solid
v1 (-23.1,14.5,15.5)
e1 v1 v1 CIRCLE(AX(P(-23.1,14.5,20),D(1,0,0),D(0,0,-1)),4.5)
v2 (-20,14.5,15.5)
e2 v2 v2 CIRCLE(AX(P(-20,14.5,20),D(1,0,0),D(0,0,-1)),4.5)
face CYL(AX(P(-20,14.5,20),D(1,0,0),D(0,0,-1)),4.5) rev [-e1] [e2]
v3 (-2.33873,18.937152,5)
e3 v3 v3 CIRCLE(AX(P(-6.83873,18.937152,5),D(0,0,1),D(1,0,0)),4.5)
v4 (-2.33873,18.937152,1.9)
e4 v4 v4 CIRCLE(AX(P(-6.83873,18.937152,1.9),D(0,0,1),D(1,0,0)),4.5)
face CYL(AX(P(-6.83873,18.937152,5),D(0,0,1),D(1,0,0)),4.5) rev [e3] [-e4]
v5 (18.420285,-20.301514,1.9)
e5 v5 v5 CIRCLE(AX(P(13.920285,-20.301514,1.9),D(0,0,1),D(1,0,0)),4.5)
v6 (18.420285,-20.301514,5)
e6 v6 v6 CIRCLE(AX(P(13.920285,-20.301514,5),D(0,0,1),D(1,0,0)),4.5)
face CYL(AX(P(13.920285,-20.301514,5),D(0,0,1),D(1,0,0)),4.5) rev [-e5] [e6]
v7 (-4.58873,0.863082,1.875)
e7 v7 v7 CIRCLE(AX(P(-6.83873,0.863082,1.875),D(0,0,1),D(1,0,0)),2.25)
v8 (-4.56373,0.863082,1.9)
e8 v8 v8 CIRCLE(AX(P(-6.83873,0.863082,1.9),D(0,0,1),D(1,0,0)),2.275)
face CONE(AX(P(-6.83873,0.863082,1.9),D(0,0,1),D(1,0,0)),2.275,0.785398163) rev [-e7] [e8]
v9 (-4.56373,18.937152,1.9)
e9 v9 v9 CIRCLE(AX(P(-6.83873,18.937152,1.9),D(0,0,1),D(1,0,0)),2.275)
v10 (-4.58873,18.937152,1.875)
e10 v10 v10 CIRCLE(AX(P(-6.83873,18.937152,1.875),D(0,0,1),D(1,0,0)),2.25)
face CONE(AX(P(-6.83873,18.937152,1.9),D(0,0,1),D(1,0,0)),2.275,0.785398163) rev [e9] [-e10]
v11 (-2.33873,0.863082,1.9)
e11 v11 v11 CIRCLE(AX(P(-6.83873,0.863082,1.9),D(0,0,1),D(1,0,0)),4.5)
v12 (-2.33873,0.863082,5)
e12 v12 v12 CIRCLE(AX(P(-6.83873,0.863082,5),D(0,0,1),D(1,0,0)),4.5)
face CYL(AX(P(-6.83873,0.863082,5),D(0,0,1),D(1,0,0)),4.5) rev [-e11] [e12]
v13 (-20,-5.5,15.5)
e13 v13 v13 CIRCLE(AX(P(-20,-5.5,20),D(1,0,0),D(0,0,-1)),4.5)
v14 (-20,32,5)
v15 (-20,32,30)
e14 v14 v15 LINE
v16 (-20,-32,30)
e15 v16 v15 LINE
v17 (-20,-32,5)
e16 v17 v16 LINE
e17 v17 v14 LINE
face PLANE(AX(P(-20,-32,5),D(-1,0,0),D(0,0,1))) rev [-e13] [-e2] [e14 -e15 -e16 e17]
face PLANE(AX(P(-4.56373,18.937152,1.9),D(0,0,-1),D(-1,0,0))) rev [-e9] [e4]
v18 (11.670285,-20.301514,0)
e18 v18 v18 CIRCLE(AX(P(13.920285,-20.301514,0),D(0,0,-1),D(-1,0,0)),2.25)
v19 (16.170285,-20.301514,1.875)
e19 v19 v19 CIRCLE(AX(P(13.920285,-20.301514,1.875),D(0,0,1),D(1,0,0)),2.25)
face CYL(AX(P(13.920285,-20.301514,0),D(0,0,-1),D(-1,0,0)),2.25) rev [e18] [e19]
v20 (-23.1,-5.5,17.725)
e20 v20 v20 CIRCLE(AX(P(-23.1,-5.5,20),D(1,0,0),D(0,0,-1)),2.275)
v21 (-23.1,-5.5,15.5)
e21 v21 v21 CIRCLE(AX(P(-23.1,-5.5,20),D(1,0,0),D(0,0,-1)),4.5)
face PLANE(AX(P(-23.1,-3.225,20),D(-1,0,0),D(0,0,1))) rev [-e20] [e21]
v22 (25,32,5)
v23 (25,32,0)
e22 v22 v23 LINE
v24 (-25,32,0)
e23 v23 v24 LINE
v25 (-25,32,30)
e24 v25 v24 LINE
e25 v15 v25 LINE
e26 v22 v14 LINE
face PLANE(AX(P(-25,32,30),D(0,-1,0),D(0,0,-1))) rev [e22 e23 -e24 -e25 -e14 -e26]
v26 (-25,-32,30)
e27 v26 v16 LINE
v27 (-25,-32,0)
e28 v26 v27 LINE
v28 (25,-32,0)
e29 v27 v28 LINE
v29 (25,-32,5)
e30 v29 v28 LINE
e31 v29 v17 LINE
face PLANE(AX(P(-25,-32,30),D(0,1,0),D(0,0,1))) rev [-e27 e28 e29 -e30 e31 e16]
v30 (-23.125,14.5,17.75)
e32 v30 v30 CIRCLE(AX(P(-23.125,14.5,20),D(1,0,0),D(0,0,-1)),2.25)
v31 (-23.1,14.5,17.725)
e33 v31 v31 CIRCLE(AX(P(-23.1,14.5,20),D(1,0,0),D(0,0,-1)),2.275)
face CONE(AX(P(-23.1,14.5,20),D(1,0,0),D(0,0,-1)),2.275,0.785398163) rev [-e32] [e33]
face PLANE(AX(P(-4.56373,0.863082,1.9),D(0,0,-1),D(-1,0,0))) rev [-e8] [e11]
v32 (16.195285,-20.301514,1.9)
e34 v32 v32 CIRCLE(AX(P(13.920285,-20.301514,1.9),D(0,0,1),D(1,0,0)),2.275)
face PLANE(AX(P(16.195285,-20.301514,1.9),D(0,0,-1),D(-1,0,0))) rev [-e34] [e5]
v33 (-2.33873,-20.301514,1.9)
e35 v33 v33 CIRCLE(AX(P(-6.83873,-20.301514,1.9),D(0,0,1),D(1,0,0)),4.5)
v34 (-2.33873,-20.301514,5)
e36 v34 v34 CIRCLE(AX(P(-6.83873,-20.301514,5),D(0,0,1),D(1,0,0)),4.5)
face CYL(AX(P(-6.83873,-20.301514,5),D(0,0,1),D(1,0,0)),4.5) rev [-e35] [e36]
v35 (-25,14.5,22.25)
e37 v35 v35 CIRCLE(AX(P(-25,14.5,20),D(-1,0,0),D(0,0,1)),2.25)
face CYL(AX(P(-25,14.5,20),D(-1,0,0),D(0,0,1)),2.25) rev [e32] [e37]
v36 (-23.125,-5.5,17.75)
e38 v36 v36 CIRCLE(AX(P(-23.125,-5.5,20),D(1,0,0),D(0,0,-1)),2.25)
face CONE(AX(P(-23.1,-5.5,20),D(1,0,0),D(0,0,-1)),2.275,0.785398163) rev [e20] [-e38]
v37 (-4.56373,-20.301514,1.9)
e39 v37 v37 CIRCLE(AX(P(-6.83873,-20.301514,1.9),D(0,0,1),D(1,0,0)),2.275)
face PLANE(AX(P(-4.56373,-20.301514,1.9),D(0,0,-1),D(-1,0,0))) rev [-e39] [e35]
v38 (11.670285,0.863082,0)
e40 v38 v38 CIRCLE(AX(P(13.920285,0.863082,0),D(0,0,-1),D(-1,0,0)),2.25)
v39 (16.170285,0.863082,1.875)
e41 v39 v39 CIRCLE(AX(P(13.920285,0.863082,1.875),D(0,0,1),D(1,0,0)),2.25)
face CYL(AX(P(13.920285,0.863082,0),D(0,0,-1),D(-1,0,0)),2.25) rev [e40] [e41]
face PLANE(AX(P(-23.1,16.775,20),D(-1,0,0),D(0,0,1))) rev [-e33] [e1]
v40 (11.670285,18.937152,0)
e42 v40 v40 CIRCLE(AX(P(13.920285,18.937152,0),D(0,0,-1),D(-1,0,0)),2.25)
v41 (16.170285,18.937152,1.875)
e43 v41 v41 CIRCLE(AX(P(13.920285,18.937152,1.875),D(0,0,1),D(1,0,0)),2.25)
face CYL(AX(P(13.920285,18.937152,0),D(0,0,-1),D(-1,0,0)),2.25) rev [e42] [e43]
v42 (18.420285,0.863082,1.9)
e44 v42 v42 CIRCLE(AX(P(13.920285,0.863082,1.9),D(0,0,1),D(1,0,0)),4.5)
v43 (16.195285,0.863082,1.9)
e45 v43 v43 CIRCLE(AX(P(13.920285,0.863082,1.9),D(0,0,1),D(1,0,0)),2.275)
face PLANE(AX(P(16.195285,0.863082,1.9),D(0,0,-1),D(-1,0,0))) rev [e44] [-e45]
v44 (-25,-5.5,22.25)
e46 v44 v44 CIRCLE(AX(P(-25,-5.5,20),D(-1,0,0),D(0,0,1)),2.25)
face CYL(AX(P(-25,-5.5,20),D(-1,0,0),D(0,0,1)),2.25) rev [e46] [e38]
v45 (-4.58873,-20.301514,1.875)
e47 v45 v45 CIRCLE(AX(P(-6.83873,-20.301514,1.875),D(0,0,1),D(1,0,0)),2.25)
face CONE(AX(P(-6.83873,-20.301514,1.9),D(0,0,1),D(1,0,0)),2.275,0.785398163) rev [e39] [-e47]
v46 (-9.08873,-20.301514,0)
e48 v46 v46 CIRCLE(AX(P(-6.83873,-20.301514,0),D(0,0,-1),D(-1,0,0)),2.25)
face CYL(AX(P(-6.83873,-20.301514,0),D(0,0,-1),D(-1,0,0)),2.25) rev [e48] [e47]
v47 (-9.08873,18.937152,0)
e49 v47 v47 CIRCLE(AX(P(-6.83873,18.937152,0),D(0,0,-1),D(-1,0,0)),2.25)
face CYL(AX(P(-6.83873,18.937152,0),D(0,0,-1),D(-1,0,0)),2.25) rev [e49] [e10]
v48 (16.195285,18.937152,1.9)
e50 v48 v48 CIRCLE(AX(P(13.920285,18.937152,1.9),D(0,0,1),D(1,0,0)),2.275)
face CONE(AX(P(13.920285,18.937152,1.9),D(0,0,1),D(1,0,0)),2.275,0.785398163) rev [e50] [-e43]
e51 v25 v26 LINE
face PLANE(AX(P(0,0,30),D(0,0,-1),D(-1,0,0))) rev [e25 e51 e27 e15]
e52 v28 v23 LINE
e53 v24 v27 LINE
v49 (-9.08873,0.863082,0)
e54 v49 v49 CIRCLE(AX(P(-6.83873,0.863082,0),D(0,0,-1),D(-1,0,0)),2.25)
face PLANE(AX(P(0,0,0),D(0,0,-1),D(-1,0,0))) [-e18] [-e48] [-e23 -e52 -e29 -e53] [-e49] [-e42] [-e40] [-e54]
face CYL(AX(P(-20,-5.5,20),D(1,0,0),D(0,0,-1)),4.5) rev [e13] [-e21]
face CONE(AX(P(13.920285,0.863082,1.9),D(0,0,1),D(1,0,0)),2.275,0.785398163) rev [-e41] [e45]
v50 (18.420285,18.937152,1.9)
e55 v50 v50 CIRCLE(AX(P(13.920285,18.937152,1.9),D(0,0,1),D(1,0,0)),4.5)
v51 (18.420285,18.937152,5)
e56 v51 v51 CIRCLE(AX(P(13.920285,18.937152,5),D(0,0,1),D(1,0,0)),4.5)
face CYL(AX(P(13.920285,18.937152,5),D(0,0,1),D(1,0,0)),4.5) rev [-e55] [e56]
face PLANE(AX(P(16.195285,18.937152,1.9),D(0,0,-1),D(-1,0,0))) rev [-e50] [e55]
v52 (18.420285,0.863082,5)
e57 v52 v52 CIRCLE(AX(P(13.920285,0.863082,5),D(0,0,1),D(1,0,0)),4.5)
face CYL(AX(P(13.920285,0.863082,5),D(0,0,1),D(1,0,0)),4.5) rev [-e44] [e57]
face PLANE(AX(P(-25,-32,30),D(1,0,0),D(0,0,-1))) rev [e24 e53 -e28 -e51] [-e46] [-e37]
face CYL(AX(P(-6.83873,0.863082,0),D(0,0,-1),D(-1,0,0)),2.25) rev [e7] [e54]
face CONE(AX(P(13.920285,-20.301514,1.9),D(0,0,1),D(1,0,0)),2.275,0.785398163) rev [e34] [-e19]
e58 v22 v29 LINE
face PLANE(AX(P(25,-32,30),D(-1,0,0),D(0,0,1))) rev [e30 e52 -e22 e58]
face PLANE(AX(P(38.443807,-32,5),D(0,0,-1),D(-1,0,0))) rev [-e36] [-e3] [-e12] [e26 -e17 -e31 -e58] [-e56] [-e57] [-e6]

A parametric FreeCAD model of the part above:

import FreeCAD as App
import Part
import Sketcher

V = App.Vector
Q = App.Units.Quantity

doc = App.newDocument("Part")
params = doc.addObject("Spreadsheet::Sheet", "Params")
for row, (alias, value) in enumerate([
    ("sketch1_width", "50 mm"),
    ("sketch1_height", "64 mm"),
    ("pad1_length", "30 mm"),
    ("sketch3_diameter", "4.5 mm"),
    ("hole_diameter", "4.5 mm"),
    ("sketch4_diameter", "4.5 mm"),
    ("hole2_diameter", "4.5 mm"),
    ("sketch5_height", "5 mm"),
    ("sketch5_width", "4.5 mm"),
    ("sketch5_height2", "3.1 mm"),
    ("sketch5_width2", "2.25 mm"),
    ("groove_angle", "360 deg"),
    ("linearpattern_pitch", "20.759016 mm"),
    ("linearpattern2_pitch", "18.07407 mm"),
    ("linearpattern3_pitch", "27.524693 mm"),
    ("linearpattern4_pitch", "39.238666 mm"),
    ("linearpattern5_pitch", "44.391549 mm"),
    ("sketch6_width", "5 mm"),
    ("sketch6_width2", "3.1 mm"),
    ("sketch6_height", "4.5 mm"),
    ("sketch6_height2", "2.25 mm"),
    ("groove2_angle", "360 deg"),
    ("linearpattern6_pitch", "20 mm"),
], start=1):
    params.set(f"A{row}", alias)
    params.set(f"B{row}", "=" + value)
    params.setAlias(f"B{row}", alias)

body = doc.addObject("PartDesign::Body", "Body")

# Sketch on XY plane
sketch1 = body.newObject("Sketcher::SketchObject", "Sketch")
sketch1.AttachmentSupport = (doc.getObject("XY_Plane"), [""])
sketch1.MapMode = "FlatFace"
sketch1.addGeometry([
    Part.LineSegment(V(-25, 32, 0), V(-25, -32, 0)),
    Part.LineSegment(V(-25, -32, 0), V(25, -32, 0)),
    Part.LineSegment(V(25, -32, 0), V(25, 32, 0)),
    Part.LineSegment(V(25, 32, 0), V(-25, 32, 0)),
], False)
sketch1.addConstraint([
    Sketcher.Constraint("Coincident", 0, 2, 1, 1),
    Sketcher.Constraint("Coincident", 1, 2, 2, 1),
    Sketcher.Constraint("Coincident", 2, 2, 3, 1),
    Sketcher.Constraint("Coincident", 3, 2, 0, 1),
    Sketcher.Constraint("Vertical", 0),
    Sketcher.Constraint("Horizontal", 1),
    Sketcher.Constraint("Vertical", 2),
    Sketcher.Constraint("Horizontal", 3),
    Sketcher.Constraint("Symmetric", 0, 2, 2, 2, -1, 1),
    Sketcher.Constraint("DistanceX", 1, 1, 1, 2, Q("50 mm")),
    Sketcher.Constraint("DistanceY", 0, 2, 0, 1, Q("64 mm")),
])
sketch1.setExpression("Constraints[9]", "Params.sketch1_width")
sketch1.setExpression("Constraints[10]", "Params.sketch1_height")
pad1 = body.newObject("PartDesign::Pad", "Pad")
pad1.Profile = sketch1
pad1.setExpression("Length", "Params.pad1_length")

# Sketch on XZ plane
sketch2 = body.newObject("Sketcher::SketchObject", "Sketch001")
sketch2.AttachmentSupport = (doc.getObject("XZ_Plane"), [""])
sketch2.MapMode = "FlatFace"
sketch2.AttachmentOffset = App.Placement(V(0, 0, -32), App.Rotation())
sketch2.addGeometry([
    Part.LineSegment(V(-20, 5, 0), V(-20, 39.604438, 0)),
    Part.LineSegment(V(-20, 39.604438, 0), V(38.443807, 39.604438, 0)),
    Part.LineSegment(V(38.443807, 39.604438, 0), V(38.443807, 5, 0)),
    Part.LineSegment(V(38.443807, 5, 0), V(-20, 5, 0)),
], False)
sketch2.addConstraint([
    Sketcher.Constraint("Coincident", 0, 2, 1, 1),
    Sketcher.Constraint("Coincident", 1, 2, 2, 1),
    Sketcher.Constraint("Coincident", 2, 2, 3, 1),
    Sketcher.Constraint("Coincident", 3, 2, 0, 1),
    Sketcher.Constraint("Vertical", 0),
    Sketcher.Constraint("Horizontal", 1),
    Sketcher.Constraint("Vertical", 2),
    Sketcher.Constraint("Horizontal", 3),
    Sketcher.Constraint("DistanceX", 0, 2, -1, 1, Q("20 mm")),
    Sketcher.Constraint("DistanceY", -1, 1, 2, 2, Q("5 mm")),
    Sketcher.Constraint("DistanceX", 1, 1, 1, 2, Q("58.443807 mm")),
    Sketcher.Constraint("DistanceY", 0, 1, 0, 2, Q("34.604438 mm")),
])
pocket1 = body.newObject("PartDesign::Pocket", "Pocket")
pocket1.Profile = sketch2
pocket1.Type = "ThroughAll"
pocket1.Reversed = True

# Sketch on XY plane
sketch3 = body.newObject("Sketcher::SketchObject", "Sketch002")
sketch3.AttachmentSupport = (doc.getObject("XY_Plane"), [""])
sketch3.MapMode = "FlatFace"
sketch3.addGeometry([
    Part.Circle(V(-6.83873, 18.937152, 0), V(0, 0, 1), 2.25),  # 0
    Part.Circle(V(13.920285, 18.937152, 0), V(0, 0, 1), 2.25),  # 1
    Part.Circle(V(13.920285, 0.863082, 0), V(0, 0, 1), 2.25),  # 2
    Part.Circle(V(-6.83873, 0.863082, 0), V(0, 0, 1), 2.25),  # 3
    Part.Circle(V(-6.83873, -20.301514, 0), V(0, 0, 1), 2.25),  # 4
    Part.Circle(V(13.920285, -20.301514, 0), V(0, 0, 1), 2.25),  # 5
], False)
sketch3.addConstraint([
    Sketcher.Constraint("Equal", 0, 1),
    Sketcher.Constraint("Equal", 1, 2),
    Sketcher.Constraint("Equal", 2, 3),
    Sketcher.Constraint("Equal", 3, 4),
    Sketcher.Constraint("Equal", 4, 5),
    Sketcher.Constraint("Horizontal", 0, 3, 1, 3),
    Sketcher.Constraint("Horizontal", 2, 3, 3, 3),
    Sketcher.Constraint("Horizontal", 4, 3, 5, 3),
    Sketcher.Constraint("Vertical", 1, 3, 2, 3),
    Sketcher.Constraint("Vertical", 0, 3, 3, 3),
    Sketcher.Constraint("Vertical", 3, 3, 4, 3),
    Sketcher.Constraint("Vertical", 2, 3, 5, 3),
    Sketcher.Constraint("Diameter", 0, Q("4.5 mm")),
    Sketcher.Constraint("DistanceX", 0, 3, -1, 1, Q("6.83873 mm")),
    Sketcher.Constraint("DistanceY", -1, 1, 0, 3, Q("18.937152 mm")),
    Sketcher.Constraint("DistanceY", 2, 3, 1, 3, Q("18.07407 mm")),
    Sketcher.Constraint("DistanceX", -1, 1, 1, 3, Q("13.920285 mm")),
    Sketcher.Constraint("DistanceY", 4, 3, -1, 1, Q("20.301514 mm")),
])
sketch3.setExpression("Constraints[12]", "Params.sketch3_diameter")
doc.recompute()
hole = body.newObject("PartDesign::Hole", "Hole")
hole.Profile = sketch3
hole.ThreadType = "None"
hole.setExpression("Diameter", "Params.hole_diameter")
hole.DepthType = "ThroughAll"
hole.Reversed = True

# Sketch on YZ plane
sketch4 = body.newObject("Sketcher::SketchObject", "Sketch003")
sketch4.AttachmentSupport = (doc.getObject("YZ_Plane"), [""])
sketch4.MapMode = "FlatFace"
sketch4.AttachmentOffset = App.Placement(V(0, 0, -25), App.Rotation())
sketch4.addGeometry([
    Part.Circle(V(14.5, 20, 0), V(0, 0, 1), 2.25),
    Part.Circle(V(-5.5, 20, 0), V(0, 0, 1), 2.25),
], False)
sketch4.addConstraint([
    Sketcher.Constraint("Equal", 0, 1),
    Sketcher.Constraint("Horizontal", 0, 3, 1, 3),
    Sketcher.Constraint("Diameter", 0, Q("4.5 mm")),
    Sketcher.Constraint("DistanceY", -1, 1, 0, 3, Q("20 mm")),
    Sketcher.Constraint("DistanceX", 1, 3, 0, 3, Q("20 mm")),
    Sketcher.Constraint("DistanceX", -1, 1, 0, 3, Q("14.5 mm")),
])
sketch4.setExpression("Constraints[2]", "Params.sketch4_diameter")
doc.recompute()
hole2 = body.newObject("PartDesign::Hole", "Hole001")
hole2.Profile = sketch4
hole2.ThreadType = "None"
hole2.setExpression("Diameter", "Params.hole2_diameter")
hole2.DepthType = "ThroughAll"
hole2.Reversed = True

# Sketch on YZ plane
sketch5 = body.newObject("Sketcher::SketchObject", "Sketch004")
sketch5.AttachmentSupport = (doc.getObject("YZ_Plane"), [""])
sketch5.MapMode = "FlatFace"
sketch5.AttachmentOffset = App.Placement(V(0, 0, 13.920285), App.Rotation())
sketch5.addGeometry([
    Part.LineSegment(V(18.937152, 0, 0), V(18.937152, 5, 0)),  # 0
    Part.LineSegment(V(18.937152, 5, 0), V(14.437152, 5, 0)),  # 1
    Part.LineSegment(V(14.437152, 5, 0), V(14.437152, 1.9, 0)),  # 2
    Part.LineSegment(V(14.437152, 1.9, 0), V(16.662152, 1.9, 0)),  # 3
    Part.LineSegment(V(16.662152, 1.9, 0), V(16.687152, 1.875, 0)),  # 4
    Part.LineSegment(V(16.687152, 1.875, 0), V(16.687152, 0, 0)),  # 5
    Part.LineSegment(V(16.687152, 0, 0), V(18.937152, 0, 0)),  # 6
], False)
sketch5.addGeometry(Part.LineSegment(V(18.937152, 5, 0), V(18.937152, 0, 0)), True)  # axis
sketch5.addConstraint([
    Sketcher.Constraint("Coincident", 0, 2, 1, 1),
    Sketcher.Constraint("Coincident", 1, 2, 2, 1),
    Sketcher.Constraint("Coincident", 2, 2, 3, 1),
    Sketcher.Constraint("Coincident", 3, 2, 4, 1),
    Sketcher.Constraint("Coincident", 4, 2, 5, 1),
    Sketcher.Constraint("Coincident", 5, 2, 6, 1),
    Sketcher.Constraint("Coincident", 6, 2, 0, 1),
    Sketcher.Constraint("Vertical", 0),
    Sketcher.Constraint("Horizontal", 1),
    Sketcher.Constraint("Vertical", 2),
    Sketcher.Constraint("Horizontal", 3),
    Sketcher.Constraint("Vertical", 5),
    Sketcher.Constraint("Horizontal", 6),
    Sketcher.Constraint("Vertical", 7),
    Sketcher.Constraint("Coincident", 7, 1, 0, 2),
    Sketcher.Constraint("PointOnObject", 5, 2, -1),
    Sketcher.Constraint("PointOnObject", 7, 2, -1),
    Sketcher.Constraint("DistanceY", 0, 1, 0, 2, Q("5 mm")),
    Sketcher.Constraint("Angle", 4, Q("-45 deg")),
    Sketcher.Constraint("DistanceX", 1, 2, 1, 1, Q("4.5 mm")),
    Sketcher.Constraint("DistanceY", 2, 2, 2, 1, Q("3.1 mm")),
    Sketcher.Constraint("DistanceX", 6, 1, 6, 2, Q("2.25 mm")),
    Sketcher.Constraint("DistanceX", 3, 1, 3, 2, Q("2.225 mm")),
    Sketcher.Constraint("DistanceX", -1, 1, 0, 2, Q("18.937152 mm")),
])
sketch5.setExpression("Constraints[17]", "Params.sketch5_height")
sketch5.setExpression("Constraints[19]", "Params.sketch5_width")
sketch5.setExpression("Constraints[20]", "Params.sketch5_height2")
sketch5.setExpression("Constraints[21]", "Params.sketch5_width2")
groove = body.newObject("PartDesign::Groove", "Groove")
groove.Profile = sketch5
groove.ReferenceAxis = (sketch5, ["Axis0"])
groove.setExpression("Angle", "Params.groove_angle")
doc.recompute()

linearpattern = body.newObject("PartDesign::LinearPattern", "LinearPattern")
linearpattern.Originals = [groove]
linearpattern.Direction = (doc.getObject("X_Axis"), [""])
linearpattern.Mode = "offset"
linearpattern.setExpression("Offset", "Params.linearpattern_pitch")
linearpattern.Occurrences = 2
linearpattern.Reversed = True
body.Tip = linearpattern
doc.recompute()

linearpattern2 = body.newObject("PartDesign::LinearPattern", "LinearPattern001")
linearpattern2.Originals = [groove]
linearpattern2.Direction = (doc.getObject("Y_Axis"), [""])
linearpattern2.Mode = "offset"
linearpattern2.setExpression("Offset", "Params.linearpattern2_pitch")
linearpattern2.Occurrences = 2
linearpattern2.Reversed = True
body.Tip = linearpattern2
doc.recompute()

datumline = body.newObject("PartDesign::Line", "DatumLine")
datumline.Placement = App.Placement(V(0, 0, 0), App.Rotation(V(0, 0, 1), V(-0.75419608, -0.656649277, 0)))
linearpattern3 = body.newObject("PartDesign::LinearPattern", "LinearPattern002")
linearpattern3.Originals = [groove]
linearpattern3.Direction = (datumline, [""])
linearpattern3.Mode = "offset"
linearpattern3.setExpression("Offset", "Params.linearpattern3_pitch")
linearpattern3.Occurrences = 2
body.Tip = linearpattern3
doc.recompute()

linearpattern4 = body.newObject("PartDesign::LinearPattern", "LinearPattern003")
linearpattern4.Originals = [groove]
linearpattern4.Direction = (doc.getObject("Y_Axis"), [""])
linearpattern4.Mode = "offset"
linearpattern4.setExpression("Offset", "Params.linearpattern4_pitch")
linearpattern4.Occurrences = 2
linearpattern4.Reversed = True
body.Tip = linearpattern4
doc.recompute()

datumline2 = body.newObject("PartDesign::Line", "DatumLine001")
datumline2.Placement = App.Placement(V(0, 0, 0), App.Rotation(V(0, 0, 1), V(-0.467634406, -0.883921978, 0)))
linearpattern5 = body.newObject("PartDesign::LinearPattern", "LinearPattern004")
linearpattern5.Originals = [groove]
linearpattern5.Direction = (datumline2, [""])
linearpattern5.Mode = "offset"
linearpattern5.setExpression("Offset", "Params.linearpattern5_pitch")
linearpattern5.Occurrences = 2
body.Tip = linearpattern5

# Sketch on XZ plane
sketch6 = body.newObject("Sketcher::SketchObject", "Sketch005")
sketch6.AttachmentSupport = (doc.getObject("XZ_Plane"), [""])
sketch6.MapMode = "FlatFace"
sketch6.AttachmentOffset = App.Placement(V(0, 0, -14.5), App.Rotation())
sketch6.addGeometry([
    Part.LineSegment(V(-25, 20, 0), V(-20, 20, 0)),  # 0
    Part.LineSegment(V(-20, 20, 0), V(-20, 15.5, 0)),  # 1
    Part.LineSegment(V(-20, 15.5, 0), V(-23.1, 15.5, 0)),  # 2
    Part.LineSegment(V(-23.1, 15.5, 0), V(-23.1, 17.725, 0)),  # 3
    Part.LineSegment(V(-23.1, 17.725, 0), V(-23.125, 17.75, 0)),  # 4
    Part.LineSegment(V(-23.125, 17.75, 0), V(-25, 17.75, 0)),  # 5
    Part.LineSegment(V(-25, 17.75, 0), V(-25, 20, 0)),  # 6
], False)
sketch6.addGeometry(Part.LineSegment(V(-20, 20, 0), V(-25, 20, 0)), True)  # axis
sketch6.addConstraint([
    Sketcher.Constraint("Coincident", 0, 2, 1, 1),
    Sketcher.Constraint("Coincident", 1, 2, 2, 1),
    Sketcher.Constraint("Coincident", 2, 2, 3, 1),
    Sketcher.Constraint("Coincident", 3, 2, 4, 1),
    Sketcher.Constraint("Coincident", 4, 2, 5, 1),
    Sketcher.Constraint("Coincident", 5, 2, 6, 1),
    Sketcher.Constraint("Coincident", 6, 2, 0, 1),
    Sketcher.Constraint("Horizontal", 0),
    Sketcher.Constraint("Vertical", 1),
    Sketcher.Constraint("Horizontal", 2),
    Sketcher.Constraint("Vertical", 3),
    Sketcher.Constraint("Horizontal", 5),
    Sketcher.Constraint("Vertical", 6),
    Sketcher.Constraint("Horizontal", 7),
    Sketcher.Constraint("Coincident", 7, 1, 0, 2),
    Sketcher.Constraint("Vertical", 5, 2, 7, 2),
    Sketcher.Constraint("DistanceX", 0, 1, 0, 2, Q("5 mm")),
    Sketcher.Constraint("Angle", 4, Q("135 deg")),
    Sketcher.Constraint("DistanceX", 2, 2, 2, 1, Q("3.1 mm")),
    Sketcher.Constraint("DistanceY", 1, 2, 1, 1, Q("4.5 mm")),
    Sketcher.Constraint("DistanceX", 0, 2, -1, 1, Q("20 mm")),
    Sketcher.Constraint("DistanceY", -1, 1, 0, 2, Q("20 mm")),
    Sketcher.Constraint("DistanceY", 6, 1, 6, 2, Q("2.25 mm")),
    Sketcher.Constraint("DistanceX", 5, 2, 5, 1, Q("1.875 mm")),
])
sketch6.setExpression("Constraints[16]", "Params.sketch6_width")
sketch6.setExpression("Constraints[18]", "Params.sketch6_width2")
sketch6.setExpression("Constraints[19]", "Params.sketch6_height")
sketch6.setExpression("Constraints[22]", "Params.sketch6_height2")
groove2 = body.newObject("PartDesign::Groove", "Groove001")
groove2.Profile = sketch6
groove2.ReferenceAxis = (sketch6, ["Axis0"])
groove2.setExpression("Angle", "Params.groove2_angle")
doc.recompute()

linearpattern6 = body.newObject("PartDesign::LinearPattern", "LinearPattern005")
linearpattern6.Originals = [groove2]
linearpattern6.Direction = (doc.getObject("Y_Axis"), [""])
linearpattern6.Mode = "offset"
linearpattern6.setExpression("Offset", "Params.linearpattern6_pitch")
linearpattern6.Occurrences = 2
linearpattern6.Reversed = True
body.Tip = linearpattern6

doc.recompute()
